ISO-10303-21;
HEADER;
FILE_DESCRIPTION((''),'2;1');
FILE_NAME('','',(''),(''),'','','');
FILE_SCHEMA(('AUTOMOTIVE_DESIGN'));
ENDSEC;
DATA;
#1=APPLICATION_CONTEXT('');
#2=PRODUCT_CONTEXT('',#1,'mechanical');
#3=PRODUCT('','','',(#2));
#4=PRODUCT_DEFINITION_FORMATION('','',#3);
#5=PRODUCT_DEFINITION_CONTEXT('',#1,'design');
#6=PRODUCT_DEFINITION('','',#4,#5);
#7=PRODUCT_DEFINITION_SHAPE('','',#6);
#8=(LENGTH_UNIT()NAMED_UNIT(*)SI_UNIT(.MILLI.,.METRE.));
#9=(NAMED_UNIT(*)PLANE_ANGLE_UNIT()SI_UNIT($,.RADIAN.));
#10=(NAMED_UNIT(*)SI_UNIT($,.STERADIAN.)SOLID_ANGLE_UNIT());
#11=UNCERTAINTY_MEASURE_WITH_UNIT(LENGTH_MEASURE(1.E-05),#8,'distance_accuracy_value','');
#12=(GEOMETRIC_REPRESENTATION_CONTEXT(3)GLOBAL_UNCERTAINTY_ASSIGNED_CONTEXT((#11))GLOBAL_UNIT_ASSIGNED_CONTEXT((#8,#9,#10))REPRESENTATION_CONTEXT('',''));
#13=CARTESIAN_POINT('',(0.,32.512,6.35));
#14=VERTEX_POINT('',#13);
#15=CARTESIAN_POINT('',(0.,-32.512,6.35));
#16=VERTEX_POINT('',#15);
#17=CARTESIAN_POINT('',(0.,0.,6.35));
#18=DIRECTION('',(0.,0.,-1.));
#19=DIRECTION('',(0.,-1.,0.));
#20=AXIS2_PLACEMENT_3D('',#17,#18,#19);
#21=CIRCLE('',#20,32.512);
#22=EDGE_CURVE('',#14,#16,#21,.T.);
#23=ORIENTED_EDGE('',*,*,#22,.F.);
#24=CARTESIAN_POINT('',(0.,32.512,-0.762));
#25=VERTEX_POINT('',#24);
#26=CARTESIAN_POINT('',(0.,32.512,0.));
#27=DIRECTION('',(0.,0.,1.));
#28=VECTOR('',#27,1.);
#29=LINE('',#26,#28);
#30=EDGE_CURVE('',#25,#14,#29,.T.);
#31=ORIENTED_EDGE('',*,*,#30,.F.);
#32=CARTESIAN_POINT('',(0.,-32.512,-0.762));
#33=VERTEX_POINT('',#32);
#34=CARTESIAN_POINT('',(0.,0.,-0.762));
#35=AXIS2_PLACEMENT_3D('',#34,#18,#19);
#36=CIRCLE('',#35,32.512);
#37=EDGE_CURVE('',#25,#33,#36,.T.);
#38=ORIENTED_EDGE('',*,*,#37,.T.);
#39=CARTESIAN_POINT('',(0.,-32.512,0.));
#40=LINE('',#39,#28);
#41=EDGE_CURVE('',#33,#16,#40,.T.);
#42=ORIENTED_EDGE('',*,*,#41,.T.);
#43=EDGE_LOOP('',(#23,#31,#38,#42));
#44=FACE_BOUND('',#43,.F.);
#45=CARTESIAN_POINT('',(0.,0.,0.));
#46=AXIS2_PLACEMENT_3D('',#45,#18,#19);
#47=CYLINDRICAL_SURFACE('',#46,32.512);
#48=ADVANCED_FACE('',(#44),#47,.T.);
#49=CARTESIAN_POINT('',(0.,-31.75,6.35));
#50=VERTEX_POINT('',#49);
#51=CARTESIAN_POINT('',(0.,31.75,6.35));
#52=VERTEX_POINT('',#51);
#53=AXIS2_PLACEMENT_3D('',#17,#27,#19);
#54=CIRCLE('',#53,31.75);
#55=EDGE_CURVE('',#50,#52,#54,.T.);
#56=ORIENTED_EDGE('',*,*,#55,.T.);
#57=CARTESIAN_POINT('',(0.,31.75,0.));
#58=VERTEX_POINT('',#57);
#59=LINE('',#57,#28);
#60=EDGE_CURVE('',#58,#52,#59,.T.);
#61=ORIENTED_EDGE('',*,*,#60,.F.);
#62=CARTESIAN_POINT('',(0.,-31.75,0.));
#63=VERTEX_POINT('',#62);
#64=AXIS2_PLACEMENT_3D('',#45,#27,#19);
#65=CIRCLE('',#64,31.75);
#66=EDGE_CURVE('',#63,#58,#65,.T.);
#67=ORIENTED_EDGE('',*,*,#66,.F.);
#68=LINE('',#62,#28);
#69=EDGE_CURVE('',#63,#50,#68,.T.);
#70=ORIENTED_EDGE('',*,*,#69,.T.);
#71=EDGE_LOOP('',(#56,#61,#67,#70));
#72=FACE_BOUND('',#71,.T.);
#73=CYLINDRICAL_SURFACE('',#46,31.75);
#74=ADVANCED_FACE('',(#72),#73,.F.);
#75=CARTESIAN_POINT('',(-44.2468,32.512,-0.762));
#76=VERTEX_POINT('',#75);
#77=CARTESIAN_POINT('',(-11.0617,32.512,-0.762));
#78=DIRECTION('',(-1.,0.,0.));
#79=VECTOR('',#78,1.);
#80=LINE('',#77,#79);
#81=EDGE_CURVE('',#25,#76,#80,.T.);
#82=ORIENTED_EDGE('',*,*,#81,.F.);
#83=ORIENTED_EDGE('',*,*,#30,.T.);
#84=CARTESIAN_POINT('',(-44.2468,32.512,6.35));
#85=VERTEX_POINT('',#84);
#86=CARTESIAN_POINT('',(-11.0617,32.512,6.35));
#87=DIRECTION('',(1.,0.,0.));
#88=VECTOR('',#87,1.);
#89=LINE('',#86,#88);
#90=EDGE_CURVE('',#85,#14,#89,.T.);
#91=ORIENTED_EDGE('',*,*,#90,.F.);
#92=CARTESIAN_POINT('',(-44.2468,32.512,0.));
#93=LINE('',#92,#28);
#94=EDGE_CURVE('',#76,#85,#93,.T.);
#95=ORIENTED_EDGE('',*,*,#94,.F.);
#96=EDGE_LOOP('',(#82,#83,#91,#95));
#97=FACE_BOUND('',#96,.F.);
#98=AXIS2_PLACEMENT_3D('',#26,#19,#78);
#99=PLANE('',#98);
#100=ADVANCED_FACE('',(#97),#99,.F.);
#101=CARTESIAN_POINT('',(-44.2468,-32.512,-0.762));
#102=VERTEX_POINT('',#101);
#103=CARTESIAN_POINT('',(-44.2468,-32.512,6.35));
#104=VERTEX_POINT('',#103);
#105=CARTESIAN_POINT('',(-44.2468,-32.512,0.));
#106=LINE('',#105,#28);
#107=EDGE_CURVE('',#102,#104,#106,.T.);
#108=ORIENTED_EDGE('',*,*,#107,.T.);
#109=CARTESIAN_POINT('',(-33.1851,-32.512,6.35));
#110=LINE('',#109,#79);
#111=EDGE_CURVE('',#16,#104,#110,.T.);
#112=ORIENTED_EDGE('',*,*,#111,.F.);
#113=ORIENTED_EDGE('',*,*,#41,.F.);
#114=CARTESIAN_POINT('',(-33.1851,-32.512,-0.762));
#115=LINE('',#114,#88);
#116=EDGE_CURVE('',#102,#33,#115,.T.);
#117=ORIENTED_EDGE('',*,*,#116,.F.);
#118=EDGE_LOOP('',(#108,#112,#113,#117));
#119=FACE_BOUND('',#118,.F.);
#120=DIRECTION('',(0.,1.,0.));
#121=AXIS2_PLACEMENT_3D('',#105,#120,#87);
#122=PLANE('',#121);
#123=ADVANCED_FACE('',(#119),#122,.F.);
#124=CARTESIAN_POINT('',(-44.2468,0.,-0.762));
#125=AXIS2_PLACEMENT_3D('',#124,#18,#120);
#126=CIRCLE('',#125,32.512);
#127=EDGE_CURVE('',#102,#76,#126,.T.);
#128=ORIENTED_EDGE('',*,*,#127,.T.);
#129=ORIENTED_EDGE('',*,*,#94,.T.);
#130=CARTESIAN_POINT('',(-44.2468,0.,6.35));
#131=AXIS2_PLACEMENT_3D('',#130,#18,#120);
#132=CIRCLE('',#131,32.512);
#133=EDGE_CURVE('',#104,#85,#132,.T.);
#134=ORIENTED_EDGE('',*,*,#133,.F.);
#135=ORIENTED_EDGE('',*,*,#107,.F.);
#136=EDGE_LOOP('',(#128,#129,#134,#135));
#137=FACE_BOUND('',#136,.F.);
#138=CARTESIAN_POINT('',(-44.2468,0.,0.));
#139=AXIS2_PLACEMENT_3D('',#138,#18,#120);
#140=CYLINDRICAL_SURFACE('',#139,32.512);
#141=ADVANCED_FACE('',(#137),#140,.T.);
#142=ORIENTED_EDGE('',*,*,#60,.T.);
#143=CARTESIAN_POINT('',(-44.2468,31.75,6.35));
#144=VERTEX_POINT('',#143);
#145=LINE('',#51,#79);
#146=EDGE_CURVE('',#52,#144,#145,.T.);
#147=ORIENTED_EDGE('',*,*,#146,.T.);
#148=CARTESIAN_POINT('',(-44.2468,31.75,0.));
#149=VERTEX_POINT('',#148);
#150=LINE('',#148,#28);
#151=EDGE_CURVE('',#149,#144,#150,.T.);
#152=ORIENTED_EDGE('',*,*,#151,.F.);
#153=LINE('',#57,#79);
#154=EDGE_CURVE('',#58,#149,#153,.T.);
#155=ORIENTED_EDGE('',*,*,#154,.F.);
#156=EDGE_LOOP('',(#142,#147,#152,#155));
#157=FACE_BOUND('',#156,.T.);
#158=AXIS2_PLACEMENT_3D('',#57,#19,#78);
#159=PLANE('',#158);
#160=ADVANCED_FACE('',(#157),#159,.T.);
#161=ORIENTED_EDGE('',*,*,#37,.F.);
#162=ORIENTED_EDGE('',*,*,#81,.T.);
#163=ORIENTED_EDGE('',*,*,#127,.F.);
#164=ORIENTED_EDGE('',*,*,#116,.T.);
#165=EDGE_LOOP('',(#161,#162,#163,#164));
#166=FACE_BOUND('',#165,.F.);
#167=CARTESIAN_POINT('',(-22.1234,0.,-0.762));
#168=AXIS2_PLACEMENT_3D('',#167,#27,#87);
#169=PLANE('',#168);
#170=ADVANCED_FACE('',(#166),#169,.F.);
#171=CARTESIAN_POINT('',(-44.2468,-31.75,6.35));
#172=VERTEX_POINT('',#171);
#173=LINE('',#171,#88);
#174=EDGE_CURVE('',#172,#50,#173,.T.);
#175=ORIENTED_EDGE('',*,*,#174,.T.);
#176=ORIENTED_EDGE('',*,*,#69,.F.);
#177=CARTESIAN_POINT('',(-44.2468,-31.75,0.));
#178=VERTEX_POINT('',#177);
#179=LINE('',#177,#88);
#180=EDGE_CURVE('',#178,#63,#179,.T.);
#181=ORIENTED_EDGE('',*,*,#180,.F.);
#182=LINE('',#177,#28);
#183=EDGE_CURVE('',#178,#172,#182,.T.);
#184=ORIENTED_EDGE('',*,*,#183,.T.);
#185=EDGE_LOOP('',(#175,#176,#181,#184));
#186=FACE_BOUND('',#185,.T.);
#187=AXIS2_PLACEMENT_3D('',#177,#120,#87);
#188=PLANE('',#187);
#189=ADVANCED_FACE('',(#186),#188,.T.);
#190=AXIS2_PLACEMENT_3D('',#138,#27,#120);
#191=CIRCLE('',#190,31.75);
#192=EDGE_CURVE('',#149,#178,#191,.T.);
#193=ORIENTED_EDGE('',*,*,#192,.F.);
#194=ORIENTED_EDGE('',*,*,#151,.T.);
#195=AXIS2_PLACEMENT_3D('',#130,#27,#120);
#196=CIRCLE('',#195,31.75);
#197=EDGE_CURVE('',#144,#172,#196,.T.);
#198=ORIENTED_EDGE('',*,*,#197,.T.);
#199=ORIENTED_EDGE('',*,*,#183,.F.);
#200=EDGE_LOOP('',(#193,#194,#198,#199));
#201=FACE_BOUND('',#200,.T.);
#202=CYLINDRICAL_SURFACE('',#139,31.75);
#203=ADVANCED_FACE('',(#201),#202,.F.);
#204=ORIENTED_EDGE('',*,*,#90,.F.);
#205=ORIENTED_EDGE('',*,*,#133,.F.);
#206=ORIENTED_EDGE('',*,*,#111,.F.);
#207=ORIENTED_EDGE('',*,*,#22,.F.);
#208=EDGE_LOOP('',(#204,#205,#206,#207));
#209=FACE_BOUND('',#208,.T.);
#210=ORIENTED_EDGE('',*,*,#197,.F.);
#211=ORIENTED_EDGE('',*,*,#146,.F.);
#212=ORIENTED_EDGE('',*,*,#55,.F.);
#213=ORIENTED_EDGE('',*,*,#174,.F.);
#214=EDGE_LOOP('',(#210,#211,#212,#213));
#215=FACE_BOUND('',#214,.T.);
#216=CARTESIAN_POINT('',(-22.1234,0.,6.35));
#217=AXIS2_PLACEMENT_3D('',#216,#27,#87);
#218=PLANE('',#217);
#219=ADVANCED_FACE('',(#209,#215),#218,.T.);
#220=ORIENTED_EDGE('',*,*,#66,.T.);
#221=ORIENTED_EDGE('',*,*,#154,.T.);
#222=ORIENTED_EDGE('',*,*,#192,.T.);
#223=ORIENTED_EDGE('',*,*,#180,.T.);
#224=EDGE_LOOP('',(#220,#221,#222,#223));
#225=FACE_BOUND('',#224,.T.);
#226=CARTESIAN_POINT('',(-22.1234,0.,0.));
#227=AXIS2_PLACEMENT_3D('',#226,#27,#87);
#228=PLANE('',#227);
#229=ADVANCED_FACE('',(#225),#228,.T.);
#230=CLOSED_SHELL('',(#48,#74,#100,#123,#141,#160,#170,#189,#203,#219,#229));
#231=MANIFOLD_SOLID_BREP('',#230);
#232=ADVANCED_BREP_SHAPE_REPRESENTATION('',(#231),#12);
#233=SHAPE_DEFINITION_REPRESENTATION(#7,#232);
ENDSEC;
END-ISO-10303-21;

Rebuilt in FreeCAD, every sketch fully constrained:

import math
import FreeCAD as App
import Part
import Sketcher

V = App.Vector
Q = App.Units.Quantity


def faces_at(feature, points):
    """Names of the faces that lie closest to the given points."""
    faces = feature.Shape.Faces
    near = lambda p: min(range(len(faces)), key=lambda i: faces[i].distToShape(Part.Vertex(*p))[0])
    return sorted({f"Face{near(p) + 1}" for p in points})

doc = App.newDocument("Part")
body = doc.addObject("PartDesign::Body", "Body")

sketch1 = body.newObject("Sketcher::SketchObject", "Sketch")
sketch1.AttachmentSupport = (doc.getObject("XY_Plane"), [""])
sketch1.MapMode = "FlatFace"
sketch1.addGeometry(Part.LineSegment(V(-44, -32, 0), V(0, -32, 0)), False)
sketch1.addGeometry(Part.ArcOfCircle(Part.Circle(V(0, 0, 0), V(0, 0, 1), 32), math.radians(-90), math.radians(90)), False)
sketch1.addGeometry(Part.LineSegment(V(0, 32, 0), V(-44, 32, 0)), False)
sketch1.addGeometry(Part.ArcOfCircle(Part.Circle(V(-44, 0, 0), V(0, 0, 1), 32), math.radians(90), math.radians(270)), False)
sketch1.addConstraint(Sketcher.Constraint("Tangent", 0, 2, 1, 1))
sketch1.addConstraint(Sketcher.Constraint("Tangent", 1, 2, 2, 1))
sketch1.addConstraint(Sketcher.Constraint("Tangent", 2, 2, 3, 1))
sketch1.addConstraint(Sketcher.Constraint("Tangent", 3, 2, 0, 1))
sketch1.addConstraint(Sketcher.Constraint("Horizontal", 0))
sketch1.addConstraint(Sketcher.Constraint("Horizontal", 2))
sketch1.addConstraint(Sketcher.Constraint("Coincident", 1, 3, -1, 1))
sketch1.addConstraint(Sketcher.Constraint("Radius", 1, Q("1.25 in")))
sketch1.addConstraint(Sketcher.Constraint("DistanceX", 0, 1, 0, 2, Q("1.742 in")))
pad1 = body.newObject("PartDesign::Pad", "Pad")
pad1.Profile = sketch1
pad1.Length = Q("0.25 in")
doc.recompute()

thickness = body.newObject("PartDesign::Thickness", "Thickness")
thickness.Base = (pad1, faces_at(pad1, [(-22.123, 0, 6.35)]))
thickness.Value = Q("0.03 in")
thickness.Reversed = False
thickness.Join = "Intersection"

doc.recompute()
